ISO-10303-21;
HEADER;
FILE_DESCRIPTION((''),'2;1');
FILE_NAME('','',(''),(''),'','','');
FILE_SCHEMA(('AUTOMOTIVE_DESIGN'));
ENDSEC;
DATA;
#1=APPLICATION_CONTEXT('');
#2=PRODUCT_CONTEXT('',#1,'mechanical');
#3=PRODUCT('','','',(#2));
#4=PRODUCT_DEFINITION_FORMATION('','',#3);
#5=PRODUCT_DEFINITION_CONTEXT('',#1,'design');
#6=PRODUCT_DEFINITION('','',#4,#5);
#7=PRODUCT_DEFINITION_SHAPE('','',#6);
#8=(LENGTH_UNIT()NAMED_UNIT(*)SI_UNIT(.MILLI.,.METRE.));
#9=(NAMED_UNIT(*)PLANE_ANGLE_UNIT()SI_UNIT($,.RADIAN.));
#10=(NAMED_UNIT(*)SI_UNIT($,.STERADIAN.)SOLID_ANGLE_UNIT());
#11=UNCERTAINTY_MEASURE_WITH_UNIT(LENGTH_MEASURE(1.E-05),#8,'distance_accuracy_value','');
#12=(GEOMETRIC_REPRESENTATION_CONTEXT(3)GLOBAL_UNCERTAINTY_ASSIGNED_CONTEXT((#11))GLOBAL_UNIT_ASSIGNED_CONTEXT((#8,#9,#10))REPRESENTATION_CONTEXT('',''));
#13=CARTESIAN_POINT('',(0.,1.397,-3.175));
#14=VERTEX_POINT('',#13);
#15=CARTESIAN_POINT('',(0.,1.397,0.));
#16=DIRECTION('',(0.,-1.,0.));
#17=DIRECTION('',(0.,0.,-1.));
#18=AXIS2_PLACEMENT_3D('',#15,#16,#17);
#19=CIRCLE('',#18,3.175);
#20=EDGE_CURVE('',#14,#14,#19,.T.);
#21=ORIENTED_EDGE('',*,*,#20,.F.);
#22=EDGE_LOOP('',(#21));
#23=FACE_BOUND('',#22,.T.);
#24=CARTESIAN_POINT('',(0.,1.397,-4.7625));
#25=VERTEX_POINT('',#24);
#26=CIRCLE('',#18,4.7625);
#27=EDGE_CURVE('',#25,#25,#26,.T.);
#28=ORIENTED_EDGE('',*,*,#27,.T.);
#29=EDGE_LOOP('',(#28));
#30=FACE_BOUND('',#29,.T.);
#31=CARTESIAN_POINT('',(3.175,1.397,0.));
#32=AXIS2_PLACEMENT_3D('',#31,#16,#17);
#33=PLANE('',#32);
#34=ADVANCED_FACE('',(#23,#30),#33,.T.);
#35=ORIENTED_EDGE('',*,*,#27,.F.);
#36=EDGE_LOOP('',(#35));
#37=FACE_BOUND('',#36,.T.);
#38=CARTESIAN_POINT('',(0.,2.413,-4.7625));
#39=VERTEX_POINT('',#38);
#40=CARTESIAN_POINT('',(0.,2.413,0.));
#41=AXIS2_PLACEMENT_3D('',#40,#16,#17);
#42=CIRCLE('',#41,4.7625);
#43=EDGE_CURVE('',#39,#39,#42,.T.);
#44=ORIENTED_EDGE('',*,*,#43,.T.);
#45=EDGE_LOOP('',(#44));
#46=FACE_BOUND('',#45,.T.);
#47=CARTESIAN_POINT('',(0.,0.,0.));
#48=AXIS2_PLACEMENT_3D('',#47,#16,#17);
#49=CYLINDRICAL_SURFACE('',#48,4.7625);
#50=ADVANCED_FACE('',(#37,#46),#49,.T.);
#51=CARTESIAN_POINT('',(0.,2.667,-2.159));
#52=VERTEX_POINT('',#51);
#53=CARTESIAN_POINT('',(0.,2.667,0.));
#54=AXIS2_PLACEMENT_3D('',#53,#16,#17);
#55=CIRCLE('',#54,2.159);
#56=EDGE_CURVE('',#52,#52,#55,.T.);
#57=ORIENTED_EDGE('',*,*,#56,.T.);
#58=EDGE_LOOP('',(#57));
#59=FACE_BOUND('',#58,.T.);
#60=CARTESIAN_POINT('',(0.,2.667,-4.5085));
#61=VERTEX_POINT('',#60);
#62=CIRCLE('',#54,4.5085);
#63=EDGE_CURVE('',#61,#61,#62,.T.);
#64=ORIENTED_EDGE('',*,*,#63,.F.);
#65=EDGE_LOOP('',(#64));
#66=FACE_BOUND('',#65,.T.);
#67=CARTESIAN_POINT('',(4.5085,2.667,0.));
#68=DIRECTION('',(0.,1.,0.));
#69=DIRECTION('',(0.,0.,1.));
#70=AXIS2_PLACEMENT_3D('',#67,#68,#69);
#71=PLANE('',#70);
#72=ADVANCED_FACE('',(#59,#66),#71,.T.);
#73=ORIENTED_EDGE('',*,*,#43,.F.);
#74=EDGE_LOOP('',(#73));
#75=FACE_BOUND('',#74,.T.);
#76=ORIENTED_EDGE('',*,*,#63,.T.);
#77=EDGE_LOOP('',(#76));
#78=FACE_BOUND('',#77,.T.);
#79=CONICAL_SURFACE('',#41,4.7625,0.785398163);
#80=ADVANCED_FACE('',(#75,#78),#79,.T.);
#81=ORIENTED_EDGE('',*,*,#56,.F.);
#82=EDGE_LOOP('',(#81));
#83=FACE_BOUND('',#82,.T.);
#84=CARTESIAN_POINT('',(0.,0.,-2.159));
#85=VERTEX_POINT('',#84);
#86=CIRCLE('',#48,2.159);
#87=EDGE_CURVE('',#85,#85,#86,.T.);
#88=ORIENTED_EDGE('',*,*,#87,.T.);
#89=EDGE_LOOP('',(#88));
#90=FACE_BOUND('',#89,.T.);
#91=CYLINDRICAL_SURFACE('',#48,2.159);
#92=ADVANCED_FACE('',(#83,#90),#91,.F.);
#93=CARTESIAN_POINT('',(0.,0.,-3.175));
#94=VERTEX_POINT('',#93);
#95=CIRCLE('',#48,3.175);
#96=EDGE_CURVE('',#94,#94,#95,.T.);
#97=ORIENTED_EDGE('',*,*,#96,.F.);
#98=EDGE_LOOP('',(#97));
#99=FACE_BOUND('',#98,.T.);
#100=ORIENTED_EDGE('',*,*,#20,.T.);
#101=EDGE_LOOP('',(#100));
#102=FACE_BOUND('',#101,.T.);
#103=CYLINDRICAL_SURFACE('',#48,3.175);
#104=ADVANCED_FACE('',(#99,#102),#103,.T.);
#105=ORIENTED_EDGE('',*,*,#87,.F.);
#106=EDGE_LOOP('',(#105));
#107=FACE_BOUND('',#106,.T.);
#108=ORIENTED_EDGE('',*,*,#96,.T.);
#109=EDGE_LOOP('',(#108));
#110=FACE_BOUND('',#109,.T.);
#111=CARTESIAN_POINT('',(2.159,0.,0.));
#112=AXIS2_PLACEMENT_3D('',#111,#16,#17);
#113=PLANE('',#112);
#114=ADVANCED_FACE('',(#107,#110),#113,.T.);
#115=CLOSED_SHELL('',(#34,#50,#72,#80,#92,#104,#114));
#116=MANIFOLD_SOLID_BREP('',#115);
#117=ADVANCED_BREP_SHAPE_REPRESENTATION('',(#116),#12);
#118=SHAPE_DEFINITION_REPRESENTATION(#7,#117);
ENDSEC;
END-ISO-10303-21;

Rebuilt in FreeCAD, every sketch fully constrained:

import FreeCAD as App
import Part
import Sketcher
from FreeCAD import Vector
Q = App.Units.Quantity


def add_polygon(sketch, points):
    """Adds a closed chain of lines whose ends are joined by coincident constraints."""
    first, n = sketch.GeometryCount, len(points)
    for a, b in zip(points, points[1:] + points[:1]):
        sketch.addGeometry(Part.LineSegment(App.Vector(*a, 0), App.Vector(*b, 0)), False)
    for i in range(n):
        sketch.addConstraint(Sketcher.Constraint("Coincident", first + i, 2, first + (i + 1) % n, 1))

doc = App.newDocument("Part")
params = doc.addObject("Spreadsheet::Sheet", "Params")
for row, (alias, value) in enumerate([
    ("sketch1_width", "0.04 in"),
    ("sketch1_width2", "0.0625 in"),
    ("sketch1_height", "0.105 in"),
    ("sketch1_height2", "0.055 in"),
    ("revolution_angle", "360 deg"),
], start=1):
    params.set(f"A{row}", alias)
    params.set(f"B{row}", "=" + value)
    params.setAlias(f"B{row}", alias)

body = doc.addObject("PartDesign::Body", "Body")

sketch1 = body.newObject("Sketcher::SketchObject", "Sketch")
sketch1.AttachmentSupport = (doc.getObject("XY_Plane"), [""])
sketch1.MapMode = "FlatFace"
add_polygon(sketch1, [(2.16, 2.67), (2.16, 0), (3.17, 0), (3.17, 1.4), (4.76, 1.4), (4.76, 2.41), (4.51, 2.67)])
sketch1.addConstraint(Sketcher.Constraint("Vertical", 0))
sketch1.addConstraint(Sketcher.Constraint("Horizontal", 1))
sketch1.addConstraint(Sketcher.Constraint("Vertical", 2))
sketch1.addConstraint(Sketcher.Constraint("Horizontal", 3))
sketch1.addConstraint(Sketcher.Constraint("Vertical", 4))
sketch1.addConstraint(Sketcher.Constraint("Horizontal", 6))
sketch1.addConstraint(Sketcher.Constraint("PointOnObject", 0, 2, -1))
sketch1.addConstraint(Sketcher.Constraint("Equal", 1, 4))
sketch1.addConstraint(Sketcher.Constraint("Angle", 5, Q("135 deg")))
sketch1.addConstraint(Sketcher.Constraint("DistanceX", 1, 1, 1, 2, Q("0.04 in")))
sketch1.addConstraint(Sketcher.Constraint("DistanceX", 3, 1, 3, 2, Q("0.0625 in")))
sketch1.addConstraint(Sketcher.Constraint("DistanceY", 0, 2, 0, 1, Q("0.105 in")))
sketch1.addConstraint(Sketcher.Constraint("DistanceY", 2, 1, 2, 2, Q("0.055 in")))
sketch1.addConstraint(Sketcher.Constraint("DistanceX", -1, 1, 0, 2, Q("0.085 in")))
sketch1.setExpression("Constraints[16]", "Params.sketch1_width")
sketch1.setExpression("Constraints[17]", "Params.sketch1_width2")
sketch1.setExpression("Constraints[18]", "Params.sketch1_height")
sketch1.setExpression("Constraints[19]", "Params.sketch1_height2")
revolution = body.newObject("PartDesign::Revolution", "Revolution")
revolution.Profile = sketch1
revolution.ReferenceAxis = (sketch1, ["V_Axis"])
revolution.setExpression("Angle", "Params.revolution_angle")

doc.recompute()
